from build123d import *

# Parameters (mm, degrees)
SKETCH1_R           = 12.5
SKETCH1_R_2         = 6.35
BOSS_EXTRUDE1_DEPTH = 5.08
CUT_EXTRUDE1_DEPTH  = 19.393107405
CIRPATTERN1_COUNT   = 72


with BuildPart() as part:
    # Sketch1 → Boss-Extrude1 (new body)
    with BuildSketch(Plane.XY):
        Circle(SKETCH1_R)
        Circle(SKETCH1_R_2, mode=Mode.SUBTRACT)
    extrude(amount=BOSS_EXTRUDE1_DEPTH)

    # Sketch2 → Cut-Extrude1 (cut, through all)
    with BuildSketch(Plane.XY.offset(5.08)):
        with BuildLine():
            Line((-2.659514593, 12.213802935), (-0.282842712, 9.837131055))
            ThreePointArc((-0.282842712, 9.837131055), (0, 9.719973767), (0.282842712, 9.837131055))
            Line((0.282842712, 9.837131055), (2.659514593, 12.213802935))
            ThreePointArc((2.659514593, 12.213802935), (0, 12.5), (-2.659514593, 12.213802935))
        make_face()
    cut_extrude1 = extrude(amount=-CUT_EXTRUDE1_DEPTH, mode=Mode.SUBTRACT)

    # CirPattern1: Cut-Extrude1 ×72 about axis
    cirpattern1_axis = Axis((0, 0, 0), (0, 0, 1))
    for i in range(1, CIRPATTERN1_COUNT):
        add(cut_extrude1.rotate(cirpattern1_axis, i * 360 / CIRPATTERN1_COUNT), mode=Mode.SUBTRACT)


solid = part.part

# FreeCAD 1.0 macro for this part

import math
import FreeCAD as App
import Part
import Sketcher

V = App.Vector
Q = App.Units.Quantity

doc = App.newDocument("Part")
body = doc.addObject("PartDesign::Body", "Body")

sketch1 = body.newObject("Sketcher::SketchObject", "Sketch")
sketch1.AttachmentSupport = (doc.getObject("XY_Plane"), [""])
sketch1.MapMode = "FlatFace"
sketch1.addGeometry(Part.Circle(V(0, 0, 0), V(0, 0, 1), 12), False)
sketch1.addGeometry(Part.Circle(V(0, 0, 0), V(0, 0, 1), 6), False)
sketch1.addConstraint(Sketcher.Constraint("Coincident", 0, 3, -1, 1))
sketch1.addConstraint(Sketcher.Constraint("Coincident", 1, 3, -1, 1))
sketch1.addConstraint(Sketcher.Constraint("Diameter", 0, Q("25 mm")))
sketch1.addConstraint(Sketcher.Constraint("Diameter", 1, Q("12.7 mm")))
pad1 = body.newObject("PartDesign::Pad", "Pad")
pad1.Profile = sketch1
pad1.Length = 5.08

sketch2 = body.newObject("Sketcher::SketchObject", "Sketch001")
sketch2.AttachmentSupport = (doc.getObject("XY_Plane"), [""])
sketch2.MapMode = "FlatFace"
sketch2.AttachmentOffset = App.Placement(V(0, 0, 5.08), App.Rotation())
sketch2.addGeometry(Part.LineSegment(V(-2.66, 12.21, 0), V(-0.28, 9.84, 0)), False)
sketch2.addGeometry(Part.ArcOfCircle(Part.Circle(V(0, 10.12, 0), V(0, 0, 1), 0.4), math.radians(-135), math.radians(-45)), False)
sketch2.addGeometry(Part.LineSegment(V(0.28, 9.84, 0), V(2.66, 12.21, 0)), False)
sketch2.addGeometry(Part.ArcOfCircle(Part.Circle(V(0, 0, 0), V(0, 0, 1), 12.5), math.radians(78), math.radians(102)), False)
sketch2.addConstraint(Sketcher.Constraint("Tangent", 0, 2, 1, 1))
sketch2.addConstraint(Sketcher.Constraint("Tangent", 1, 2, 2, 1))
sketch2.addConstraint(Sketcher.Constraint("Coincident", 2, 2, 3, 1))
sketch2.addConstraint(Sketcher.Constraint("Coincident", 3, 2, 0, 1))
sketch2.addConstraint(Sketcher.Constraint("Coincident", 3, 3, -1, 1))
sketch2.addConstraint(Sketcher.Constraint("Symmetric", 0, 2, 1, 2, -2))
sketch2.addConstraint(Sketcher.Constraint("Perpendicular", 0, 2))
sketch2.addConstraint(Sketcher.Constraint("Radius", 1, Q("0.4 mm")))
sketch2.addConstraint(Sketcher.Constraint("Radius", 3, Q("12.5 mm")))
sketch2.addConstraint(Sketcher.Constraint("Distance", 0, Q("3.361122 mm")))
pocket1 = body.newObject("PartDesign::Pocket", "Pocket")
pocket1.Profile = sketch2
pocket1.Type = "ThroughAll"
doc.recompute()

polarpattern = body.newObject("PartDesign::PolarPattern", "PolarPattern")
polarpattern.Originals = [pocket1]
polarpattern.Axis = (doc.getObject("Z_Axis"), [""])
polarpattern.Angle = 360
polarpattern.Occurrences = 72
body.Tip = polarpattern

doc.recompute()
